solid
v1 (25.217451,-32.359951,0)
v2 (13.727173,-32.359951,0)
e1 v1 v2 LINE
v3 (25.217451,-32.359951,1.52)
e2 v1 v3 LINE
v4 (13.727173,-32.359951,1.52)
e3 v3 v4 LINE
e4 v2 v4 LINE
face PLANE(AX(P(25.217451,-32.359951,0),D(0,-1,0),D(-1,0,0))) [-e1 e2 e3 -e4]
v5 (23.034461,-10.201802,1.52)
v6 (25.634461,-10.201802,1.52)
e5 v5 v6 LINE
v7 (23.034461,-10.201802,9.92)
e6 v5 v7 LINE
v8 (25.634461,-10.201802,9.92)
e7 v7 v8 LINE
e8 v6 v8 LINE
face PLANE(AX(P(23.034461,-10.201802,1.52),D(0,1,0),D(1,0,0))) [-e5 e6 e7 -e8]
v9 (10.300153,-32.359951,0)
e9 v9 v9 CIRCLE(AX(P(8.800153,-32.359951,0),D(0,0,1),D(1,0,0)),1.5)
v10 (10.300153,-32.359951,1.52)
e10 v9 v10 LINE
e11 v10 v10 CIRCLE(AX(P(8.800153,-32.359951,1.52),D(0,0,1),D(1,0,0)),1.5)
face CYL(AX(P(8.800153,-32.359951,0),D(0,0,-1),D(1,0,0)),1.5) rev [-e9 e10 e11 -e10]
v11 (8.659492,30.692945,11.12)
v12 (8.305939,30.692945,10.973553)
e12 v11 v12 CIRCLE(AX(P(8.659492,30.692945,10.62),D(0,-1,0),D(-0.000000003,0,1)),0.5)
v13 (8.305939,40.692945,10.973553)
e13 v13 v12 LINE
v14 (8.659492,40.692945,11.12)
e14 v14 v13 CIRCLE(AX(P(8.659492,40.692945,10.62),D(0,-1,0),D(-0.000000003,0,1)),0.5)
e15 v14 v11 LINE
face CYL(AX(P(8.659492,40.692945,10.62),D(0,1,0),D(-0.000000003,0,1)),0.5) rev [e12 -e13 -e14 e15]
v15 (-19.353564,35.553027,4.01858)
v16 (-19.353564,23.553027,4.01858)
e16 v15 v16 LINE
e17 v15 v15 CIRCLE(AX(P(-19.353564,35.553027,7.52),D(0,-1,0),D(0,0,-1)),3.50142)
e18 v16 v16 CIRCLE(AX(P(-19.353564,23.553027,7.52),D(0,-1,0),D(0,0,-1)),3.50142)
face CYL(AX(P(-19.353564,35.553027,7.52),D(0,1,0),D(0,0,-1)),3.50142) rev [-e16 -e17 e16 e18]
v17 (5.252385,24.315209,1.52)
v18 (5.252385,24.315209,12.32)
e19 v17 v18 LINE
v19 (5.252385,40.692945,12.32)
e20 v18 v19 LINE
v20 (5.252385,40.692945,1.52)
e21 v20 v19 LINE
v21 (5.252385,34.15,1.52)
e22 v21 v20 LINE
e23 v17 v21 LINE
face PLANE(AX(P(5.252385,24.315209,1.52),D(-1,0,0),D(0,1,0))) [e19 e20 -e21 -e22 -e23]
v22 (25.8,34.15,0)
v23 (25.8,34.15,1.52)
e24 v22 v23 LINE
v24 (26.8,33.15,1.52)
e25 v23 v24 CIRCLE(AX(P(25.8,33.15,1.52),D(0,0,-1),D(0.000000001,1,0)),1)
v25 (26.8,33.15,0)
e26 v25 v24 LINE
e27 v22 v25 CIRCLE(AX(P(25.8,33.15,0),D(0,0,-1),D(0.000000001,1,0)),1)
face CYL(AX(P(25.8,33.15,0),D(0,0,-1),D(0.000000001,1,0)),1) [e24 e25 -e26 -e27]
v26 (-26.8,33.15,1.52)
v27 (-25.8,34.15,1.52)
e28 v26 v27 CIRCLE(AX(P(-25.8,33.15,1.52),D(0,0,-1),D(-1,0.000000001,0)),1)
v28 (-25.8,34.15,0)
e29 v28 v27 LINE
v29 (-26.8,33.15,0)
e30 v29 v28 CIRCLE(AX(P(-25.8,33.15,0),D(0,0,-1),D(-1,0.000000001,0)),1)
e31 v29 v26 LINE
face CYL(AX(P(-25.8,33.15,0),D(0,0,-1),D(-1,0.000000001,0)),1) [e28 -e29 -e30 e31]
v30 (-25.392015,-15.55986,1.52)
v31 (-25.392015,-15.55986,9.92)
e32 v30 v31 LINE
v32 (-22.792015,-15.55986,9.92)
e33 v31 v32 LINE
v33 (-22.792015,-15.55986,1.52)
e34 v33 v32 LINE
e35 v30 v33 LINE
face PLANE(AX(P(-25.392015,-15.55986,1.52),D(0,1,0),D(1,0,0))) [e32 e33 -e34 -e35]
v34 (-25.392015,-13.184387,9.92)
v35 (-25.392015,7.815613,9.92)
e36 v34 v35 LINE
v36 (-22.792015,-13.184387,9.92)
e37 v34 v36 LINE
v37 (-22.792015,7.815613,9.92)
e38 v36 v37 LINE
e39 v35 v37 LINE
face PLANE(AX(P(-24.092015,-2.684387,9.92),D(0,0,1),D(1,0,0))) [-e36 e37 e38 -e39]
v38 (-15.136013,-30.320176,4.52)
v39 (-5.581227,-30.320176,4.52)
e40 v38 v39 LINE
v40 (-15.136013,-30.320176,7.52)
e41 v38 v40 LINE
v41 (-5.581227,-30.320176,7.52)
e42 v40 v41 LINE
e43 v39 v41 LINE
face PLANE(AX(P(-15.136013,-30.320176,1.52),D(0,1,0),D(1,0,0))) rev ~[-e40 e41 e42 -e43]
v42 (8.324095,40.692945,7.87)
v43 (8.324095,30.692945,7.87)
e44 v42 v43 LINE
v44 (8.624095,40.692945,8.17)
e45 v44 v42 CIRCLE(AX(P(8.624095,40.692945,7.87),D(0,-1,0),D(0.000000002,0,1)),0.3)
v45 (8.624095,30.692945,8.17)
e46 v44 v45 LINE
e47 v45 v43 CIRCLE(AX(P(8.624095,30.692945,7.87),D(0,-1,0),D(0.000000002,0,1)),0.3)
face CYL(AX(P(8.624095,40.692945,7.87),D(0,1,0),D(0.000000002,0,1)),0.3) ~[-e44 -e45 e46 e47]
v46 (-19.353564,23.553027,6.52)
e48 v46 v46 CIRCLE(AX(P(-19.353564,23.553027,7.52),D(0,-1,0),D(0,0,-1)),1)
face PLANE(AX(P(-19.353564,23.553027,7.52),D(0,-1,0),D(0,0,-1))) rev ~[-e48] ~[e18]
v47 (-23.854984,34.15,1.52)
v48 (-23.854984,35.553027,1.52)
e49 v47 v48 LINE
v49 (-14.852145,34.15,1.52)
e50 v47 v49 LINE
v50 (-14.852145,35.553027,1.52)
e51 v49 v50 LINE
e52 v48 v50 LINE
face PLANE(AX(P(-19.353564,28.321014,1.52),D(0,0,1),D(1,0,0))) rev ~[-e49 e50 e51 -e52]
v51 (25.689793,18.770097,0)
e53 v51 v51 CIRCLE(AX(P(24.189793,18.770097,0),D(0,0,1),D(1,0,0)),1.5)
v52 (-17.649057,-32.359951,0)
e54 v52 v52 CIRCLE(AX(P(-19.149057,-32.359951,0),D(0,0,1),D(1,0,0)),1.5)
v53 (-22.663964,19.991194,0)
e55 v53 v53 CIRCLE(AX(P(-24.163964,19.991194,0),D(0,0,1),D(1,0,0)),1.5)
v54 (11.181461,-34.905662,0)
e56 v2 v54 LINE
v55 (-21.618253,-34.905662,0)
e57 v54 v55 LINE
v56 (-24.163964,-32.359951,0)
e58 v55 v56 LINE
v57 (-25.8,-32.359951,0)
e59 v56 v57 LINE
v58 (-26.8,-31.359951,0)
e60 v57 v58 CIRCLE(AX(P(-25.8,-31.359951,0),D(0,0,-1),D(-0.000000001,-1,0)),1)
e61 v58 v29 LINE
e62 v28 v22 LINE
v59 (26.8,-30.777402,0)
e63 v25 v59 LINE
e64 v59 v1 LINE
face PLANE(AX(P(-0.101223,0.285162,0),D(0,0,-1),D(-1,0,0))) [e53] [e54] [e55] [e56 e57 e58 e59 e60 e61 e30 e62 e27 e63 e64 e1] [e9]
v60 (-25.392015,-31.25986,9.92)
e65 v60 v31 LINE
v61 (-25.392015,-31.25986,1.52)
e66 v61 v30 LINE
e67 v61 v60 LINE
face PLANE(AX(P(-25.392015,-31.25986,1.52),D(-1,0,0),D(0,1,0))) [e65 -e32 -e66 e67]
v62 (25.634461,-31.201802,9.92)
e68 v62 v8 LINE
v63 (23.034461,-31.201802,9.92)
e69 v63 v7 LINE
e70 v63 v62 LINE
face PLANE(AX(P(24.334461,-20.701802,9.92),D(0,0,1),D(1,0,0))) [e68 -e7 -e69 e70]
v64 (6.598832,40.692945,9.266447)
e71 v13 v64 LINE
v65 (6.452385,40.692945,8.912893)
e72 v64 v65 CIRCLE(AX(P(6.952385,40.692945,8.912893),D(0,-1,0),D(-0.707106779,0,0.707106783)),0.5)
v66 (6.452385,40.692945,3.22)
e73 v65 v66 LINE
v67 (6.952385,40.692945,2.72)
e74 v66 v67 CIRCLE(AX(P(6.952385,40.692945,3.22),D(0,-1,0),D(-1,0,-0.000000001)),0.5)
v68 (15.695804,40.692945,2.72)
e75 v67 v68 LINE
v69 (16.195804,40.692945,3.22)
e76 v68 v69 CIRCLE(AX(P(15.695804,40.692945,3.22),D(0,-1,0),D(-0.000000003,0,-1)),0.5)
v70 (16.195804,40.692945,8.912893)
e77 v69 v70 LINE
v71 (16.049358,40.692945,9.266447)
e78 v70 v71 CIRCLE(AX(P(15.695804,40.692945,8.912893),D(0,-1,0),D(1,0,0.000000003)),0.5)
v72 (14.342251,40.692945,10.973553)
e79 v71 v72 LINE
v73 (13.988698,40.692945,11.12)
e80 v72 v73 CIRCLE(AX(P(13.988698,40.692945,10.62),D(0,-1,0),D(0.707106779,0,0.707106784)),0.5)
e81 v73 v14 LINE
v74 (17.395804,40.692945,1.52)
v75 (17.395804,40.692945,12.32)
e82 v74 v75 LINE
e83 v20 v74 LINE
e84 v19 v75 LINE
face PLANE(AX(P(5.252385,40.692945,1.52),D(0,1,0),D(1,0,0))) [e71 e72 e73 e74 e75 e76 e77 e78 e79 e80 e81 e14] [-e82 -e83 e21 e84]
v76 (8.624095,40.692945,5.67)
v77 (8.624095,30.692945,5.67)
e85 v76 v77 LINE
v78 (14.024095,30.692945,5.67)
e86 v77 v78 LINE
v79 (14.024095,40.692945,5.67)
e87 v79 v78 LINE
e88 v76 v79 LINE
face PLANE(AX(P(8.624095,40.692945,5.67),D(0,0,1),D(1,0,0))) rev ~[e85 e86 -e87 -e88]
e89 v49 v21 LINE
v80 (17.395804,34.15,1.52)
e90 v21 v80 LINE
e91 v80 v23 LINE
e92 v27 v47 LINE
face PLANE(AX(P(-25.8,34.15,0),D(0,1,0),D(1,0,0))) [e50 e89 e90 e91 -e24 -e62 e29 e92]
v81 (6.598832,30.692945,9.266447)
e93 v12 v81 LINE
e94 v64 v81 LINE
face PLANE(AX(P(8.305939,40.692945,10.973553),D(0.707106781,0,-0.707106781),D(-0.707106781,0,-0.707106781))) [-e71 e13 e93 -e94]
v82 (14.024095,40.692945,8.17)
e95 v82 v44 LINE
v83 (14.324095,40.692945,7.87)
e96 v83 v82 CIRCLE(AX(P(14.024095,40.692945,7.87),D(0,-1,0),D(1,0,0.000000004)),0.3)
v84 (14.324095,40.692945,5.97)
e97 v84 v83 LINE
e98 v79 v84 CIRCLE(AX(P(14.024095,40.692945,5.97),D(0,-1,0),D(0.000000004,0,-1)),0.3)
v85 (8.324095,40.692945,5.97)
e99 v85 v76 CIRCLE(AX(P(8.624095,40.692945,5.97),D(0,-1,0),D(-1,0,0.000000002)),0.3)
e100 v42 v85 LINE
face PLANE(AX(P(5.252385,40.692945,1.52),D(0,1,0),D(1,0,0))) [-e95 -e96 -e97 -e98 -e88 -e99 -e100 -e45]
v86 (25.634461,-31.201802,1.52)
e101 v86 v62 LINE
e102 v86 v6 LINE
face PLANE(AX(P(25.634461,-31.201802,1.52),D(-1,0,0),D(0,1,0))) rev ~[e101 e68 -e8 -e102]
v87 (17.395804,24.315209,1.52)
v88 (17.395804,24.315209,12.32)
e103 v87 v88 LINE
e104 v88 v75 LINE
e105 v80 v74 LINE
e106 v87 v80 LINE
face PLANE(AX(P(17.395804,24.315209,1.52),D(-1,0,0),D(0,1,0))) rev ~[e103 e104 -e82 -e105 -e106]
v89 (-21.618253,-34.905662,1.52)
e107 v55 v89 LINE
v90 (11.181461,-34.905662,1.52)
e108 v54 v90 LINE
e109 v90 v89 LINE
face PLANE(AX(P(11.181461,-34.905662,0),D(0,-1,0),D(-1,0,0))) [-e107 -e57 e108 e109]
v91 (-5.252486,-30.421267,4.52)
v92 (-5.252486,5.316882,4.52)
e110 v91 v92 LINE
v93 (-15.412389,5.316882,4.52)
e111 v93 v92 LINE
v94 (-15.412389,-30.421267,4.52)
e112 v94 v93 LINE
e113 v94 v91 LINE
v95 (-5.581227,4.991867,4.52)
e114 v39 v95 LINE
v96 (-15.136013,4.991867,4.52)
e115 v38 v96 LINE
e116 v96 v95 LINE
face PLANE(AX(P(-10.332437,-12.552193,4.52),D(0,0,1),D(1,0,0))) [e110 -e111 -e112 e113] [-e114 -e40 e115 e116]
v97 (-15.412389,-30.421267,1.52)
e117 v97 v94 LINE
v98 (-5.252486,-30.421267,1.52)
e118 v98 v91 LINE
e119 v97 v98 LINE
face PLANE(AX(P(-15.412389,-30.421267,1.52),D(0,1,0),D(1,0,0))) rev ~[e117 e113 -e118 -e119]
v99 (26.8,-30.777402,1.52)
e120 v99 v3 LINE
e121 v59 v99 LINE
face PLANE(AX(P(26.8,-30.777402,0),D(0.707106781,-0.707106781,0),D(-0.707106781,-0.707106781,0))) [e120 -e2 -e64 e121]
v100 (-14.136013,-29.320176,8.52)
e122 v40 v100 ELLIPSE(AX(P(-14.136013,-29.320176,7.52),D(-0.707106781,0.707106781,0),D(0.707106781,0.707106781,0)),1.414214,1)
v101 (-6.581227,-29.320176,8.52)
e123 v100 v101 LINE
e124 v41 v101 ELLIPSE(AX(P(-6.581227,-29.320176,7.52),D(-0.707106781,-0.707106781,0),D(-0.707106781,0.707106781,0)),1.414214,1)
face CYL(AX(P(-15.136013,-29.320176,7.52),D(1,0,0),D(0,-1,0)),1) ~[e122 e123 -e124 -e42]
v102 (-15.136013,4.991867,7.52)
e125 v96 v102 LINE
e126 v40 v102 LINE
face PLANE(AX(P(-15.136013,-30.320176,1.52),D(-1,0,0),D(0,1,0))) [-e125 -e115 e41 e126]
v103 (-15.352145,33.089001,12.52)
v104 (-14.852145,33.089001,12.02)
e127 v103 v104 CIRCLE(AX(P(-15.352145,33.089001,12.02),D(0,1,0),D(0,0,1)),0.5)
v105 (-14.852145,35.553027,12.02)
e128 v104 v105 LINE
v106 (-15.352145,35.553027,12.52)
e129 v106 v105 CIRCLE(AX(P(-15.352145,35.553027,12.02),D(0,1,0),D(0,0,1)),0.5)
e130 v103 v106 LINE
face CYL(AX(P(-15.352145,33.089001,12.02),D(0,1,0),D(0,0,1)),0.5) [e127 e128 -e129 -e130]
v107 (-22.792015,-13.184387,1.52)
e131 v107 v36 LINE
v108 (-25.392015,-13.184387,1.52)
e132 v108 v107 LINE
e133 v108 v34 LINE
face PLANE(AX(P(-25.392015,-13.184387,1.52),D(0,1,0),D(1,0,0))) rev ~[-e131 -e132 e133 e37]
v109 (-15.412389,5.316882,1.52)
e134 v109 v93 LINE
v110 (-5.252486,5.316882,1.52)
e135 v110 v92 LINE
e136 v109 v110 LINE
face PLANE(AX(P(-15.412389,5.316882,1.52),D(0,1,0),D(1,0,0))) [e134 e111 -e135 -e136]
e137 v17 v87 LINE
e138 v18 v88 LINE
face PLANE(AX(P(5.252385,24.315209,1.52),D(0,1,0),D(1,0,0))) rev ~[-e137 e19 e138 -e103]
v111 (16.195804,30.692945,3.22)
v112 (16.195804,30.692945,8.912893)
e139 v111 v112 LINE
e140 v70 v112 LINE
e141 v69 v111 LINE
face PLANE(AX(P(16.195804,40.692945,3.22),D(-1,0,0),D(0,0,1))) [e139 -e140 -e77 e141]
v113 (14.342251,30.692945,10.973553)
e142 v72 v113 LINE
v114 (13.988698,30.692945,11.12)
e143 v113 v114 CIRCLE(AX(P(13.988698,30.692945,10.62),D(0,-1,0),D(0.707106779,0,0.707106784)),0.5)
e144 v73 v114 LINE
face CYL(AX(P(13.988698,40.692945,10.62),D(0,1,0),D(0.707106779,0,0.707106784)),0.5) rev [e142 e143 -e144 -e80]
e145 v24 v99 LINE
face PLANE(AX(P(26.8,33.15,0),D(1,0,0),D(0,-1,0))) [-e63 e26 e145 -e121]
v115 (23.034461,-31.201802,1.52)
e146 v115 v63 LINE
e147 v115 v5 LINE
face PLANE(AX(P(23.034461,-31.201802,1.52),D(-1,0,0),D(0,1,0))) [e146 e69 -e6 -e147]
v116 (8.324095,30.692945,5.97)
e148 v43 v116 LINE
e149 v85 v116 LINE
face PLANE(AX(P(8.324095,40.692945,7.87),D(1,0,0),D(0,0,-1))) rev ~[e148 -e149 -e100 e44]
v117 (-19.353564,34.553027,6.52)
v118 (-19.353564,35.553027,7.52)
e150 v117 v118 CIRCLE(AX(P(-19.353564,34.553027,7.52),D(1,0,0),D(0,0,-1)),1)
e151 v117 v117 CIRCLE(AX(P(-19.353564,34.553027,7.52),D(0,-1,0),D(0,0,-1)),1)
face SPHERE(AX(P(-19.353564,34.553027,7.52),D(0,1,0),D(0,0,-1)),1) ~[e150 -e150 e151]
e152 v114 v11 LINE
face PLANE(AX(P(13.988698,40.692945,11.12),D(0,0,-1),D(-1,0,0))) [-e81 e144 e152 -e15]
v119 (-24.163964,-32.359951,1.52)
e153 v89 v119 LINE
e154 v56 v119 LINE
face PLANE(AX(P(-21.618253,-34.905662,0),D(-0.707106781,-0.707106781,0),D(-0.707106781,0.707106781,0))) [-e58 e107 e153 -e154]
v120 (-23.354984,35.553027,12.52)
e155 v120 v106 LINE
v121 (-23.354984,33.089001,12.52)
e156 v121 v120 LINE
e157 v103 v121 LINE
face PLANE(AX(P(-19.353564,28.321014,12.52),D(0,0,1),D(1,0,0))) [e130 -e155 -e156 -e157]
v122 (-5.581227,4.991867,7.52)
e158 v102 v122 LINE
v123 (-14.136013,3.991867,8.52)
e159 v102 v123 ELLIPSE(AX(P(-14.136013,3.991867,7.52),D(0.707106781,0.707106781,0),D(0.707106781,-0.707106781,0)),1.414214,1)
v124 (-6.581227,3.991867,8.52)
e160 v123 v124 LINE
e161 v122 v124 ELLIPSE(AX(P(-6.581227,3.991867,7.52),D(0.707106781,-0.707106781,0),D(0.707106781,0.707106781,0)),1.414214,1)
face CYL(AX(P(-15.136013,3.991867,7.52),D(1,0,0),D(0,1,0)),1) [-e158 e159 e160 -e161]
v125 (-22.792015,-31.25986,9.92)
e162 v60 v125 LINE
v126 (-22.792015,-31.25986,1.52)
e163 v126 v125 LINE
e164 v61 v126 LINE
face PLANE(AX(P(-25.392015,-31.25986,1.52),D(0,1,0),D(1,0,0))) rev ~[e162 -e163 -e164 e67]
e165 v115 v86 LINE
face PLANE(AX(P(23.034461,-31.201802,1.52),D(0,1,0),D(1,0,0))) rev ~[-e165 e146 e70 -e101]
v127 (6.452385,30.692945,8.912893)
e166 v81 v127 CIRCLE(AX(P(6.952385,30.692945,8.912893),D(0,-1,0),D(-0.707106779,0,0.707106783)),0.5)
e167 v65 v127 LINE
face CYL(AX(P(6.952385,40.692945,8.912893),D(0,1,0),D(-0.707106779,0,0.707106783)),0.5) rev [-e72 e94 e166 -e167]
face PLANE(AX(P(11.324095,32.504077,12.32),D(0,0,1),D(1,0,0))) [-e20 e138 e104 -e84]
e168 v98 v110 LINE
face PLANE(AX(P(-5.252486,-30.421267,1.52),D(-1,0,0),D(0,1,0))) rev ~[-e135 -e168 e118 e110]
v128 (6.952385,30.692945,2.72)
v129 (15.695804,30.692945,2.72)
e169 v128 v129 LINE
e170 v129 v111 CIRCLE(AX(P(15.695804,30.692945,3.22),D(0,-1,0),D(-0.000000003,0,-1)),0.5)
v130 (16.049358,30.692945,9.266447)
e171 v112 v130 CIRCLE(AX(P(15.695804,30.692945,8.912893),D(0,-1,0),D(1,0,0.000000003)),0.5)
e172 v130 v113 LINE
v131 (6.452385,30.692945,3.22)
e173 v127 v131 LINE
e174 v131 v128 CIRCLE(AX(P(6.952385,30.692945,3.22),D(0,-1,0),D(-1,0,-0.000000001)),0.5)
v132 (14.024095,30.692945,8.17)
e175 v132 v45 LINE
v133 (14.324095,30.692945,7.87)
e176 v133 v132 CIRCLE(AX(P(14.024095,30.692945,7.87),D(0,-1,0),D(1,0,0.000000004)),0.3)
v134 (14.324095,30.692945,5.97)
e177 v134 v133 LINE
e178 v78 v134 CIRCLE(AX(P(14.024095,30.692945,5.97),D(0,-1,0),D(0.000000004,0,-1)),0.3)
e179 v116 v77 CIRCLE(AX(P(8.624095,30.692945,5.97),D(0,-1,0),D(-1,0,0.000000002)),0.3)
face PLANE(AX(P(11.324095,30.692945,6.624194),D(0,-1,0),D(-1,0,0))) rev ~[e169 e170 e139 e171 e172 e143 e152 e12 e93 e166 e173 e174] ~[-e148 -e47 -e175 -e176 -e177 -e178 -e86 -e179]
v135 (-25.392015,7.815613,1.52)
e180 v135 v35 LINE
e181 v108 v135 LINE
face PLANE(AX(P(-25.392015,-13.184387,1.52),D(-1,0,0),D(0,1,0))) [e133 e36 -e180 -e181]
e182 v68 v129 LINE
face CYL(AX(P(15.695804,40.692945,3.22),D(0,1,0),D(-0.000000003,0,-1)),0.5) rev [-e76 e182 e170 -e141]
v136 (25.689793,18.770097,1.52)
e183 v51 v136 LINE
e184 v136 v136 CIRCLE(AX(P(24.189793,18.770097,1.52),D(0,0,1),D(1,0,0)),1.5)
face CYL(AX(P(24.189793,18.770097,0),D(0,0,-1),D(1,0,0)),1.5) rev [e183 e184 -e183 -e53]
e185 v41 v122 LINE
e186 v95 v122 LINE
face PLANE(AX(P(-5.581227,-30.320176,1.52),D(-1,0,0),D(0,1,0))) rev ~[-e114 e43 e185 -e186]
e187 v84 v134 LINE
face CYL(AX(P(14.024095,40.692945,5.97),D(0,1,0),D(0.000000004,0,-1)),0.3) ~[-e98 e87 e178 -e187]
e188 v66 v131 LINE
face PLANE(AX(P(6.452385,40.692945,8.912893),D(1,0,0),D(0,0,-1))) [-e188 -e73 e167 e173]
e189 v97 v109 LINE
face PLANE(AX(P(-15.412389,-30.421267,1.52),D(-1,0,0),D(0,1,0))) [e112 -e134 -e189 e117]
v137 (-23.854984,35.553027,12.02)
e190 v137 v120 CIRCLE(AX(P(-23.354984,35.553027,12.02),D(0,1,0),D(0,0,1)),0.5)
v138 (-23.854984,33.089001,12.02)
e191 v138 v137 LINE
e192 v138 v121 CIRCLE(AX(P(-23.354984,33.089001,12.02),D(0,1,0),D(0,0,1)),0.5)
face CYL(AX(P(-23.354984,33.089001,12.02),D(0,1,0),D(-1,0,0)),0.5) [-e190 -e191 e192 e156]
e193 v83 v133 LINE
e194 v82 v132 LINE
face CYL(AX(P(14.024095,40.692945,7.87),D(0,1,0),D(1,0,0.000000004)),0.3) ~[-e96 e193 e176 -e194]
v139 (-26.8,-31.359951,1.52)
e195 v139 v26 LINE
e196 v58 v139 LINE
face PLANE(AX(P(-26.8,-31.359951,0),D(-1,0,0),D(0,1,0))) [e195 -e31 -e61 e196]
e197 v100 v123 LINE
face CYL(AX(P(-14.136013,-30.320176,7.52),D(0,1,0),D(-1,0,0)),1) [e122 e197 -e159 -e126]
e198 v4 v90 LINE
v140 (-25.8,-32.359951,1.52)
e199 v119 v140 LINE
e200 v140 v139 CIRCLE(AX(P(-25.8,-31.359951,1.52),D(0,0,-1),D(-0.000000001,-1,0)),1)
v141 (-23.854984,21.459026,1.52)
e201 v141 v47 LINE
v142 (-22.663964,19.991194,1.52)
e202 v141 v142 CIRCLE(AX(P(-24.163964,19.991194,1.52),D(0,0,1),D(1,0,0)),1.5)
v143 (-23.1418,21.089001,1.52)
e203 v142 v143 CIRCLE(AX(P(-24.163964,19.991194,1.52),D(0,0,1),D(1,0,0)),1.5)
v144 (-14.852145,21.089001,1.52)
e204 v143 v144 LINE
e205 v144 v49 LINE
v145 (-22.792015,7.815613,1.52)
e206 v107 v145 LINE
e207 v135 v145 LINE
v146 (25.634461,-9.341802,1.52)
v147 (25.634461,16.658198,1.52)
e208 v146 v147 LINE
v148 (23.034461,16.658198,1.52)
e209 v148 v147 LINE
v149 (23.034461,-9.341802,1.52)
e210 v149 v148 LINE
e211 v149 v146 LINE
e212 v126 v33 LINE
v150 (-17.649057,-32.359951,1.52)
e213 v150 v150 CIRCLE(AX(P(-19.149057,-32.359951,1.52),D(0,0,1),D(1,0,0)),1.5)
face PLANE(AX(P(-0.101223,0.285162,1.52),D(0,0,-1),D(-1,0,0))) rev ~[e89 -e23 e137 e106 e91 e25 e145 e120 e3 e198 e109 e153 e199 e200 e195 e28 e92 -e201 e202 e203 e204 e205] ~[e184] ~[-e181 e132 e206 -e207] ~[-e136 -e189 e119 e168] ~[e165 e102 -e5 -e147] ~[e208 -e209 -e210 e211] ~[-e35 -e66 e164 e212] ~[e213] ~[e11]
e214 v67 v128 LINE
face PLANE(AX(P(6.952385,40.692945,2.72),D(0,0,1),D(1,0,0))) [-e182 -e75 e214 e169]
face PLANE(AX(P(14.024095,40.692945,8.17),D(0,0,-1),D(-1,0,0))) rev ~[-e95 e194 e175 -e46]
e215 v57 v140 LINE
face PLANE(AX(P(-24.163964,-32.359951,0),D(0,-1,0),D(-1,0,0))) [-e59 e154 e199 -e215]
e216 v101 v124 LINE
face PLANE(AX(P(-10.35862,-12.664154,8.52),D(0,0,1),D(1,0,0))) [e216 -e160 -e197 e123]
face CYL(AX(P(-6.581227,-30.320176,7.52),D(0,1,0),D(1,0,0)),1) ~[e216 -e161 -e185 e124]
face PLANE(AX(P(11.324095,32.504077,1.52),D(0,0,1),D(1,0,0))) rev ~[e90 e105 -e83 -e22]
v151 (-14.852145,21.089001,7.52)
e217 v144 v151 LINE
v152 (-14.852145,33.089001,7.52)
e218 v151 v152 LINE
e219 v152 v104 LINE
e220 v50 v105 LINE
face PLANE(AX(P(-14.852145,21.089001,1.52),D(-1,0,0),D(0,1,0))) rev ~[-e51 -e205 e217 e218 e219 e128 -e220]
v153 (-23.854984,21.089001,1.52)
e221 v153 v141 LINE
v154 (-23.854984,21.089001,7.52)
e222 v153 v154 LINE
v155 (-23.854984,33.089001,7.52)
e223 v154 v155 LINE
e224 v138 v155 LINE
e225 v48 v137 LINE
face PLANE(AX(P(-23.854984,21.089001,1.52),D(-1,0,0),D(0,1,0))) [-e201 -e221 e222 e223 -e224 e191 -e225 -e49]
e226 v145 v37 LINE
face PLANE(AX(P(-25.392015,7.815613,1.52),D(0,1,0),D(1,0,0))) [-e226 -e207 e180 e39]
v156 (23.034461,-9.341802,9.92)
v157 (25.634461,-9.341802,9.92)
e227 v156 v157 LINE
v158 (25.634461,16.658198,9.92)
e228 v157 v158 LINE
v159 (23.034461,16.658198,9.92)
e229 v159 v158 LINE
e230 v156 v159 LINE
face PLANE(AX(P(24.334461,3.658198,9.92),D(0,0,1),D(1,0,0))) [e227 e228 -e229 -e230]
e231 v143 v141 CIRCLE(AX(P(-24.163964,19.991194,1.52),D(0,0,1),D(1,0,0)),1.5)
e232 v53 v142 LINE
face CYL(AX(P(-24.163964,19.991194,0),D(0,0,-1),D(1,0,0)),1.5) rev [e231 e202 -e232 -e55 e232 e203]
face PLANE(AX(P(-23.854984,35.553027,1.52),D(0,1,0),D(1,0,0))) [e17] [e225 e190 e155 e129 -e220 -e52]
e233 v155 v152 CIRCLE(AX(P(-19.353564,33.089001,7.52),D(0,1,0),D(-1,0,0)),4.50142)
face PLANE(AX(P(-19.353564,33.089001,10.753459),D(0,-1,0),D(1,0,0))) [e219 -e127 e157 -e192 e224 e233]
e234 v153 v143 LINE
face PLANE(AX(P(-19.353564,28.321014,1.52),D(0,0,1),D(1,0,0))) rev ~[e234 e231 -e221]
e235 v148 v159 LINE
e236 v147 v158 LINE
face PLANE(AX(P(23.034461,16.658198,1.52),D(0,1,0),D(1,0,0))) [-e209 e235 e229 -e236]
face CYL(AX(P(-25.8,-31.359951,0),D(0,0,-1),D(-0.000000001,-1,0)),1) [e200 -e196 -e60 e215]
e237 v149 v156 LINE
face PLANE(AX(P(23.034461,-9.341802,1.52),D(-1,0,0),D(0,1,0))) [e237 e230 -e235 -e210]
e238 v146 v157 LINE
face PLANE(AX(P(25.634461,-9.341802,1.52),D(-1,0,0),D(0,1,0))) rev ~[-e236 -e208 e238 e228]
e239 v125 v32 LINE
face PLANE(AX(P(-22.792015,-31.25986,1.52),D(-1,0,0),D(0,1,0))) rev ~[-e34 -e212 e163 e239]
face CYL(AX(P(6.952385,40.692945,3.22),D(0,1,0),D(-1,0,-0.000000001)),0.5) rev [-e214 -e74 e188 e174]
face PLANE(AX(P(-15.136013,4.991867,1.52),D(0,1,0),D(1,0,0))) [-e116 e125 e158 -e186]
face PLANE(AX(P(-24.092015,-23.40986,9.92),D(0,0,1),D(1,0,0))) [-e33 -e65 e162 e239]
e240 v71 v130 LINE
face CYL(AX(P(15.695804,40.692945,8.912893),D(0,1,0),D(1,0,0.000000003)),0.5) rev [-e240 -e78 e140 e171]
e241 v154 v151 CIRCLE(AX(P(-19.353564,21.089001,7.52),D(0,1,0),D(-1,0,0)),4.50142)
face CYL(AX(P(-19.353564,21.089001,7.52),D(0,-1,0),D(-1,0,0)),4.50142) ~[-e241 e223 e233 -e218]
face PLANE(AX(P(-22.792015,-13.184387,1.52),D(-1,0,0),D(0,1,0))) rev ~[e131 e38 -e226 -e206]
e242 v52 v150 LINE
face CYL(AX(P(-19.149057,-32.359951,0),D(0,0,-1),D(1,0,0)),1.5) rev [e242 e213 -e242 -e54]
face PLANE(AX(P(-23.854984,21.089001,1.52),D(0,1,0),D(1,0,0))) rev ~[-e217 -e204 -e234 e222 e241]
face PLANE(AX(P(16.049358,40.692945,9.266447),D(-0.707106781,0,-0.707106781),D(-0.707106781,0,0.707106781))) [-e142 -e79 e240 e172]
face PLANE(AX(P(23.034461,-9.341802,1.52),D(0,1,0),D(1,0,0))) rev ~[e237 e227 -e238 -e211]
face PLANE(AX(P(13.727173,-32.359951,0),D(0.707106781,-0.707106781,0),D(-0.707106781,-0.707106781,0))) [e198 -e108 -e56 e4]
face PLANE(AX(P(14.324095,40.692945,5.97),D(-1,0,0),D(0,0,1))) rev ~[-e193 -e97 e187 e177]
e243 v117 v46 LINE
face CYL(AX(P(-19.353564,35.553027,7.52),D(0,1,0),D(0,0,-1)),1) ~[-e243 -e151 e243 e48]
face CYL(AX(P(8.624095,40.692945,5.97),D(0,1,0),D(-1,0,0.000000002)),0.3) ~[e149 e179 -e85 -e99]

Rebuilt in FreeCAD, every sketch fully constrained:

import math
import FreeCAD as App
import Part
import Sketcher


def edges_at(feature, points):
    """Names of the edges that pass closest to the given points."""
    edges = feature.Shape.Edges
    near = lambda p: min(range(len(edges)), key=lambda i: edges[i].distToShape(Part.Vertex(*p))[0])
    return sorted({f"Edge{near(p) + 1}" for p in points})


def add_polygon(sketch, points):
    """Adds a closed chain of lines whose ends are joined by coincident constraints."""
    first, n = sketch.GeometryCount, len(points)
    for a, b in zip(points, points[1:] + points[:1]):
        sketch.addGeometry(Part.LineSegment(App.Vector(*a, 0), App.Vector(*b, 0)), False)
    for i in range(n):
        sketch.addConstraint(Sketcher.Constraint("Coincident", first + i, 2, first + (i + 1) % n, 1))

doc = App.newDocument("Part")
params = doc.addObject("Spreadsheet::Sheet", "Params")
for row, (alias, value) in enumerate([
    ("sketch1_diameter", "3 mm"),
    ("sketch1_radius", "1 mm"),
    ("sketch1_width", "51.6 mm"),
    ("pad1_length", "1.52 mm"),
    ("pad2_length", "11 mm"),
    ("sketch3_height", "21 mm"),
    ("sketch3_height2", "26 mm"),
    ("sketch3_width", "2.6 mm"),
    ("sketch3_height3", "15.7 mm"),
    ("pad3_length", "8.4 mm"),
    ("sketch4_height", "5 mm"),
    ("pocket1_length", "12 mm"),
    ("sketch5_diameter", "2 mm"),
    ("pocket2_length", "12 mm"),
    ("fillet_radius", "1 mm"),
    ("fillet2_radius", "0.5 mm"),
    ("pad4_length", "10.8 mm"),
    ("sketch7_radius", "0.5 mm"),
    ("sketch7_radius2", "0.3 mm"),
    ("sketch7_width", "5.4 mm"),
    ("sketch7_height", "1.9 mm"),
    ("pocket3_length", "10 mm"),
    ("pad5_length", "7 mm"),
    ("fillet3_radius", "1 mm"),
    ("pad6_length", "3 mm"),
], start=1):
    params.set(f"A{row}", alias)
    params.set(f"B{row}", "=" + value)
    params.setAlias(f"B{row}", alias)

body = doc.addObject("PartDesign::Body", "Body")

# Sketch on XY plane
sketch1 = doc.addObject("Sketcher::SketchObject", "Sketch")
body.addObject(sketch1)
sketch1.AttachmentSupport = (doc.XY_Plane, [""])
sketch1.MapMode = "FlatFace"
sketch1.addGeometry([
    Part.LineSegment(App.Vector(25.217451, -32.359951, 0), App.Vector(26.8, -30.777402, 0)),  # 0
    Part.LineSegment(App.Vector(26.8, -30.777402, 0), App.Vector(26.8, 33.15, 0)),  # 1
    Part.ArcOfCircle(Part.Circle(App.Vector(25.8, 33.15, 0), App.Vector(0, 0, 1), 1), math.radians(0), math.radians(90)),  # 2
    Part.LineSegment(App.Vector(25.8, 34.15, 0), App.Vector(-25.8, 34.15, 0)),  # 3
    Part.ArcOfCircle(Part.Circle(App.Vector(-25.8, 33.15, 0), App.Vector(0, 0, 1), 1), math.radians(90), math.radians(180)),  # 4
    Part.LineSegment(App.Vector(-26.8, 33.15, 0), App.Vector(-26.8, -31.359951, 0)),  # 5
    Part.ArcOfCircle(Part.Circle(App.Vector(-25.8, -31.359951, 0), App.Vector(0, 0, 1), 1), math.radians(-180), math.radians(-90)),  # 6
    Part.LineSegment(App.Vector(-25.8, -32.359951, 0), App.Vector(-24.163964, -32.359951, 0)),  # 7
    Part.LineSegment(App.Vector(-24.163964, -32.359951, 0), App.Vector(-21.618253, -34.905662, 0)),  # 8
    Part.LineSegment(App.Vector(-21.618253, -34.905662, 0), App.Vector(11.181461, -34.905662, 0)),  # 9
    Part.LineSegment(App.Vector(11.181461, -34.905662, 0), App.Vector(13.727173, -32.359951, 0)),  # 10
    Part.LineSegment(App.Vector(13.727173, -32.359951, 0), App.Vector(25.217451, -32.359951, 0)),  # 11
    Part.Circle(App.Vector(8.800153, -32.359951, 0), App.Vector(0, 0, 1), 1.5),  # 12
    Part.Circle(App.Vector(-19.149057, -32.359951, 0), App.Vector(0, 0, 1), 1.5),  # 13
    Part.Circle(App.Vector(24.189793, 18.770097, 0), App.Vector(0, 0, 1), 1.5),  # 14
    Part.Circle(App.Vector(-24.163964, 19.991194, 0), App.Vector(0, 0, 1), 1.5),  # 15
], False)
sketch1.addConstraint([
    Sketcher.Constraint("Coincident", 0, 2, 1, 1),
    Sketcher.Constraint("Tangent", 1, 2, 2, 1),
    Sketcher.Constraint("Tangent", 2, 2, 3, 1),
    Sketcher.Constraint("Tangent", 3, 2, 4, 1),
    Sketcher.Constraint("Tangent", 4, 2, 5, 1),
    Sketcher.Constraint("Tangent", 5, 2, 6, 1),
    Sketcher.Constraint("Tangent", 6, 2, 7, 1),
    Sketcher.Constraint("Coincident", 7, 2, 8, 1),
    Sketcher.Constraint("Coincident", 8, 2, 9, 1),
    Sketcher.Constraint("Coincident", 9, 2, 10, 1),
    Sketcher.Constraint("Coincident", 10, 2, 11, 1),
    Sketcher.Constraint("Coincident", 11, 2, 0, 1),
    Sketcher.Constraint("Vertical", 1),
    Sketcher.Constraint("Horizontal", 3),
    Sketcher.Constraint("Vertical", 5),
    Sketcher.Constraint("Horizontal", 7),
    Sketcher.Constraint("Horizontal", 9),
    Sketcher.Constraint("Horizontal", 11),
    Sketcher.Constraint("Equal", 2, 4),
    Sketcher.Constraint("Equal", 4, 6),
    Sketcher.Constraint("Equal", 12, 13),
    Sketcher.Constraint("Equal", 13, 14),
    Sketcher.Constraint("Equal", 14, 15),
    Sketcher.Constraint("Perpendicular", 0, 8),
    Sketcher.Constraint("Perpendicular", 8, 10),
    Sketcher.Constraint("Horizontal", 12, 3, 13, 3),
    Sketcher.Constraint("Horizontal", 13, 3, 6, 2),
    Sketcher.Constraint("Horizontal", 7, 2, 10, 2),
    Sketcher.Constraint("Vertical", 15, 3, 7, 2),
    Sketcher.Constraint("Equal", 8, 10),
    Sketcher.Constraint("Diameter", 12, 3.0),
    Sketcher.Constraint("Radius", 2, 1.0),
    Sketcher.Constraint("DistanceX", 3, 2, 3, 1, 51.6),
    Sketcher.Constraint("DistanceX", -1, 1, 2, 3, 25.8),
    Sketcher.Constraint("DistanceY", -1, 1, 2, 3, 33.15),
    Sketcher.Constraint("DistanceX", 11, 1, 11, 2, 11.490279),
    Sketcher.Constraint("DistanceY", 5, 2, 5, 1, 64.509951),
    Sketcher.Constraint("DistanceY", 0, 2, 14, 3, 49.547499),
    Sketcher.Constraint("DistanceX", 12, 3, 11, 2, 16.417298),
    Sketcher.Constraint("Distance", 0, 2.238062),
    Sketcher.Constraint("Distance", 8, 3.60018),
    Sketcher.Constraint("DistanceX", 7, 1, 7, 2, 1.636036),
    Sketcher.Constraint("DistanceX", 13, 3, 12, 3, 27.94921),
    Sketcher.Constraint("DistanceX", 12, 3, 14, 3, 15.38964),
    Sketcher.Constraint("DistanceY", -1, 1, 15, 3, 19.991194),
])
sketch1.setExpression("Constraints[30]", "Params.sketch1_diameter")
sketch1.setExpression("Constraints[31]", "Params.sketch1_radius")
sketch1.setExpression("Constraints[32]", "Params.sketch1_width")
pad1 = doc.addObject("PartDesign::Pad", "Pad")
body.addObject(pad1)
pad1.Profile = sketch1
pad1.setExpression("Length", "Params.pad1_length")

# Sketch on XY plane
sketch2 = doc.addObject("Sketcher::SketchObject", "Sketch001")
body.addObject(sketch2)
sketch2.AttachmentSupport = (doc.XY_Plane, [""])
sketch2.MapMode = "FlatFace"
sketch2.AttachmentOffset = App.Placement(App.Vector(0, 0, 1.52), App.Rotation())
add_polygon(sketch2, [(-23.854984, 35.553027), (-23.854984, 21.089001), (-14.852145, 21.089001), (-14.852145, 35.553027)])  # lines 0-3
sketch2.addConstraint([
    Sketcher.Constraint("Vertical", 0),
    Sketcher.Constraint("Horizontal", 1),
    Sketcher.Constraint("Vertical", 2),
    Sketcher.Constraint("Horizontal", 3),
    Sketcher.Constraint("DistanceY", -1, 1, 0, 2, 21.089001),
    Sketcher.Constraint("DistanceX", 1, 1, 1, 2, 9.002839),
    Sketcher.Constraint("DistanceY", 0, 2, 0, 1, 14.464026),
    Sketcher.Constraint("DistanceX", 0, 2, -1, 1, 23.854984),
])
pad2 = doc.addObject("PartDesign::Pad", "Pad001")
body.addObject(pad2)
pad2.Profile = sketch2
pad2.setExpression("Length", "Params.pad2_length")

# Sketch on XY plane
sketch3 = doc.addObject("Sketcher::SketchObject", "Sketch002")
body.addObject(sketch3)
sketch3.AttachmentSupport = (doc.XY_Plane, [""])
sketch3.MapMode = "FlatFace"
sketch3.AttachmentOffset = App.Placement(App.Vector(0, 0, 1.52), App.Rotation())
add_polygon(sketch3, [(23.034461, -10.201802), (23.034461, -31.201802), (25.634461, -31.201802), (25.634461, -10.201802)])  # lines 0-3
add_polygon(sketch3, [(23.034461, 16.658198), (23.034461, -9.341802), (25.634461, -9.341802), (25.634461, 16.658198)])  # lines 4-7
add_polygon(sketch3, [(-25.392015, 7.815613), (-25.392015, -13.184387), (-22.792015, -13.184387), (-22.792015, 7.815613)])  # lines 8-11
add_polygon(sketch3, [(-25.392015, -15.55986), (-25.392015, -31.25986), (-22.792015, -31.25986), (-22.792015, -15.55986)])  # lines 12-15
sketch3.addConstraint([
    Sketcher.Constraint("Vertical", 0),
    Sketcher.Constraint("Horizontal", 1),
    Sketcher.Constraint("Vertical", 2),
    Sketcher.Constraint("Horizontal", 3),
    Sketcher.Constraint("Vertical", 4),
    Sketcher.Constraint("Horizontal", 5),
    Sketcher.Constraint("Vertical", 6),
    Sketcher.Constraint("Horizontal", 7),
    Sketcher.Constraint("Vertical", 8),
    Sketcher.Constraint("Horizontal", 9),
    Sketcher.Constraint("Vertical", 10),
    Sketcher.Constraint("Horizontal", 11),
    Sketcher.Constraint("Vertical", 12),
    Sketcher.Constraint("Horizontal", 13),
    Sketcher.Constraint("Vertical", 14),
    Sketcher.Constraint("Horizontal", 15),
    Sketcher.Constraint("Vertical", 3, 2, 4, 2),
    Sketcher.Constraint("Vertical", 2, 2, 5, 2),
    Sketcher.Constraint("Vertical", 11, 2, 12, 2),
    Sketcher.Constraint("Vertical", 10, 2, 13, 2),
    Sketcher.Constraint("Equal", 7, 9),
    Sketcher.Constraint("Equal", 2, 8),
    Sketcher.Constraint("DistanceY", 0, 2, 0, 1, 21.0),
    Sketcher.Constraint("DistanceY", 4, 2, 4, 1, 26.0),
    Sketcher.Constraint("DistanceX", 1, 1, 1, 2, 2.6),
    Sketcher.Constraint("DistanceY", 12, 2, 12, 1, 15.7),
    Sketcher.Constraint("DistanceY", 3, 2, 4, 2, 0.86),
    Sketcher.Constraint("DistanceX", -1, 1, 0, 2, 23.034461),
    Sketcher.Constraint("DistanceY", 12, 2, -1, 1, 31.25986),
    Sketcher.Constraint("DistanceY", 0, 2, -1, 1, 31.201802),
    Sketcher.Constraint("DistanceX", 8, 2, -1, 1, 25.392015),
    Sketcher.Constraint("DistanceY", 8, 2, -1, 1, 13.184387),
])
sketch3.setExpression("Constraints[38]", "Params.sketch3_height")
sketch3.setExpression("Constraints[39]", "Params.sketch3_height2")
sketch3.setExpression("Constraints[40]", "Params.sketch3_width")
sketch3.setExpression("Constraints[41]", "Params.sketch3_height3")
pad3 = doc.addObject("PartDesign::Pad", "Pad002")
body.addObject(pad3)
pad3.Profile = sketch3
pad3.setExpression("Length", "Params.pad3_length")

# Sketch on XZ plane
sketch4 = doc.addObject("Sketcher::SketchObject", "Sketch003")
body.addObject(sketch4)
sketch4.AttachmentSupport = (doc.XZ_Plane, [""])
sketch4.MapMode = "FlatFace"
sketch4.AttachmentOffset = App.Placement(App.Vector(0, 0, -21.089001), App.Rotation())
sketch4.addGeometry([
    Part.LineSegment(App.Vector(-14.852145, 7.52, 0), App.Vector(-14.852145, 12.52, 0)),
    Part.LineSegment(App.Vector(-14.852145, 12.52, 0), App.Vector(-23.854984, 12.52, 0)),
    Part.LineSegment(App.Vector(-23.854984, 12.52, 0), App.Vector(-23.854984, 7.52, 0)),
    Part.ArcOfCircle(Part.Circle(App.Vector(-19.353564, 7.52, 0), App.Vector(0, 0, 1), 4.50142), math.radians(0), math.radians(180)),
], False)
sketch4.addConstraint([
    Sketcher.Constraint("Coincident", 0, 2, 1, 1),
    Sketcher.Constraint("Coincident", 1, 2, 2, 1),
    Sketcher.Constraint("Tangent", 2, 2, 3, 2),
    Sketcher.Constraint("Tangent", 3, 1, 0, 1),
    Sketcher.Constraint("Vertical", 0),
    Sketcher.Constraint("Horizontal", 1),
    Sketcher.Constraint("Vertical", 2),
    Sketcher.Constraint("DistanceY", 0, 1, 0, 2, 5.0),
    Sketcher.Constraint("DistanceY", -1, 1, 3, 3, 7.52),
    Sketcher.Constraint("Radius", 3, 4.50142),
    Sketcher.Constraint("DistanceX", 3, 3, -1, 1, 19.353564),
])
sketch4.setExpression("Constraints[7]", "Params.sketch4_height")
pocket1 = doc.addObject("PartDesign::Pocket", "Pocket")
body.addObject(pocket1)
pocket1.Profile = sketch4
pocket1.setExpression("Length", "Params.pocket1_length")

# Sketch on XZ plane
sketch5 = doc.addObject("Sketcher::SketchObject", "Sketch004")
body.addObject(sketch5)
sketch5.AttachmentSupport = (doc.XZ_Plane, [""])
sketch5.MapMode = "FlatFace"
sketch5.AttachmentOffset = App.Placement(App.Vector(0, 0, -35.553027), App.Rotation())
sketch5.addGeometry([
    Part.Circle(App.Vector(-19.353564, 7.52, 0), App.Vector(0, 0, 1), 3.50142),
    Part.Circle(App.Vector(-19.353564, 7.52, 0), App.Vector(0, 0, 1), 1),
], False)
sketch5.addConstraint([
    Sketcher.Constraint("Coincident", 1, 3, 0, 3),
    Sketcher.Constraint("Diameter", 1, 2.0),
    Sketcher.Constraint("Diameter", 0, 7.002839),
    Sketcher.Constraint("DistanceY", -1, 1, 0, 3, 7.52),
    Sketcher.Constraint("DistanceX", 0, 3, -1, 1, 19.353564),
])
sketch5.setExpression("Constraints[1]", "Params.sketch5_diameter")
pocket2 = doc.addObject("PartDesign::Pocket", "Pocket001")
body.addObject(pocket2)
pocket2.Profile = sketch5
pocket2.setExpression("Length", "Params.pocket2_length")
pocket2.Reversed = True
doc.recompute()

fillet = doc.addObject("PartDesign::Fillet", "Fillet")
body.addObject(fillet)
fillet.Base = (pocket2, edges_at(pocket2, [(-19.354, 35.553, 8.52)]))
fillet.setExpression("Radius", "Params.fillet_radius")
doc.recompute()

fillet2 = doc.addObject("PartDesign::Fillet", "Fillet001")
body.addObject(fillet2)
fillet2.Base = (fillet, edges_at(fillet, [(-14.852, 34.321, 12.52), (-23.855, 34.321, 12.52)]))
fillet2.setExpression("Radius", "Params.fillet2_radius")

# Sketch on XY plane
sketch6 = doc.addObject("Sketcher::SketchObject", "Sketch005")
body.addObject(sketch6)
sketch6.AttachmentSupport = (doc.XY_Plane, [""])
sketch6.MapMode = "FlatFace"
sketch6.AttachmentOffset = App.Placement(App.Vector(0, 0, 1.52), App.Rotation())
add_polygon(sketch6, [(5.252385, 40.692945), (5.252385, 24.315209), (17.395804, 24.315209), (17.395804, 40.692945)])  # lines 0-3
sketch6.addConstraint([
    Sketcher.Constraint("Vertical", 0),
    Sketcher.Constraint("Horizontal", 1),
    Sketcher.Constraint("Vertical", 2),
    Sketcher.Constraint("Horizontal", 3),
    Sketcher.Constraint("DistanceX", 1, 1, 1, 2, 12.143419),
    Sketcher.Constraint("DistanceY", 0, 2, 0, 1, 16.377736),
    Sketcher.Constraint("DistanceY", -1, 1, 0, 2, 24.315209),
    Sketcher.Constraint("DistanceX", -1, 1, 0, 2, 5.252385),
])
pad4 = doc.addObject("PartDesign::Pad", "Pad003")
body.addObject(pad4)
pad4.Profile = sketch6
pad4.setExpression("Length", "Params.pad4_length")

# Sketch on XZ plane
sketch7 = doc.addObject("Sketcher::SketchObject", "Sketch006")
body.addObject(sketch7)
sketch7.AttachmentSupport = (doc.XZ_Plane, [""])
sketch7.MapMode = "FlatFace"
sketch7.AttachmentOffset = App.Placement(App.Vector(0, 0, -40.692945), App.Rotation())
sketch7.addGeometry([
    Part.LineSegment(App.Vector(15.695804, 2.72, 0), App.Vector(6.952385, 2.72, 0)),  # 0
    Part.ArcOfCircle(Part.Circle(App.Vector(6.952385, 3.22, 0), App.Vector(0, 0, 1), 0.5), math.radians(180), math.radians(270)),  # 1
    Part.LineSegment(App.Vector(6.452385, 3.22, 0), App.Vector(6.452385, 8.912893, 0)),  # 2
    Part.ArcOfCircle(Part.Circle(App.Vector(6.952385, 8.912893, 0), App.Vector(0, 0, 1), 0.5), math.radians(135), math.radians(180)),  # 3
    Part.LineSegment(App.Vector(6.598832, 9.266447, 0), App.Vector(8.305939, 10.973553, 0)),  # 4
    Part.ArcOfCircle(Part.Circle(App.Vector(8.659492, 10.62, 0), App.Vector(0, 0, 1), 0.5), math.radians(90), math.radians(135)),  # 5
    Part.LineSegment(App.Vector(8.659492, 11.12, 0), App.Vector(13.988698, 11.12, 0)),  # 6
    Part.ArcOfCircle(Part.Circle(App.Vector(13.988698, 10.62, 0), App.Vector(0, 0, 1), 0.5), math.radians(45), math.radians(90)),  # 7
    Part.LineSegment(App.Vector(14.342251, 10.973553, 0), App.Vector(16.049358, 9.266447, 0)),  # 8
    Part.ArcOfCircle(Part.Circle(App.Vector(15.695804, 8.912893, 0), App.Vector(0, 0, 1), 0.5), math.radians(0), math.radians(45)),  # 9
    Part.LineSegment(App.Vector(16.195804, 8.912893, 0), App.Vector(16.195804, 3.22, 0)),  # 10
    Part.ArcOfCircle(Part.Circle(App.Vector(15.695804, 3.22, 0), App.Vector(0, 0, 1), 0.5), math.radians(-90), math.radians(0)),  # 11
    Part.LineSegment(App.Vector(14.024095, 8.17, 0), App.Vector(8.624095, 8.17, 0)),  # 12
    Part.ArcOfCircle(Part.Circle(App.Vector(8.624095, 7.87, 0), App.Vector(0, 0, 1), 0.3), math.radians(90), math.radians(180)),  # 13
    Part.LineSegment(App.Vector(8.324095, 7.87, 0), App.Vector(8.324095, 5.97, 0)),  # 14
    Part.ArcOfCircle(Part.Circle(App.Vector(8.624095, 5.97, 0), App.Vector(0, 0, 1), 0.3), math.radians(180), math.radians(270)),  # 15
    Part.LineSegment(App.Vector(8.624095, 5.67, 0), App.Vector(14.024095, 5.67, 0)),  # 16
    Part.ArcOfCircle(Part.Circle(App.Vector(14.024095, 5.97, 0), App.Vector(0, 0, 1), 0.3), math.radians(-90), math.radians(0)),  # 17
    Part.LineSegment(App.Vector(14.324095, 5.97, 0), App.Vector(14.324095, 7.87, 0)),  # 18
    Part.ArcOfCircle(Part.Circle(App.Vector(14.024095, 7.87, 0), App.Vector(0, 0, 1), 0.3), math.radians(0), math.radians(90)),  # 19
], False)
sketch7.addConstraint([
    Sketcher.Constraint("Tangent", 0, 2, 1, 2),
    Sketcher.Constraint("Tangent", 1, 1, 2, 1),
    Sketcher.Constraint("Tangent", 2, 2, 3, 2),
    Sketcher.Constraint("Tangent", 3, 1, 4, 1),
    Sketcher.Constraint("Tangent", 4, 2, 5, 2),
    Sketcher.Constraint("Tangent", 5, 1, 6, 1),
    Sketcher.Constraint("Tangent", 6, 2, 7, 2),
    Sketcher.Constraint("Tangent", 7, 1, 8, 1),
    Sketcher.Constraint("Tangent", 8, 2, 9, 2),
    Sketcher.Constraint("Tangent", 9, 1, 10, 1),
    Sketcher.Constraint("Tangent", 10, 2, 11, 2),
    Sketcher.Constraint("Tangent", 11, 1, 0, 1),
    Sketcher.Constraint("Tangent", 12, 2, 13, 1),
    Sketcher.Constraint("Tangent", 13, 2, 14, 1),
    Sketcher.Constraint("Tangent", 14, 2, 15, 1),
    Sketcher.Constraint("Tangent", 15, 2, 16, 1),
    Sketcher.Constraint("Tangent", 16, 2, 17, 1),
    Sketcher.Constraint("Tangent", 17, 2, 18, 1),
    Sketcher.Constraint("Tangent", 18, 2, 19, 1),
    Sketcher.Constraint("Tangent", 19, 2, 12, 1),
    Sketcher.Constraint("Horizontal", 0),
    Sketcher.Constraint("Vertical", 2),
    Sketcher.Constraint("Horizontal", 6),
    Sketcher.Constraint("Vertical", 10),
    Sketcher.Constraint("Horizontal", 12),
    Sketcher.Constraint("Vertical", 14),
    Sketcher.Constraint("Horizontal", 16),
    Sketcher.Constraint("Vertical", 18),
    Sketcher.Constraint("Equal", 1, 3),
    Sketcher.Constraint("Equal", 3, 5),
    Sketcher.Constraint("Equal", 5, 7),
    Sketcher.Constraint("Equal", 7, 9),
    Sketcher.Constraint("Equal", 9, 11),
    Sketcher.Constraint("Equal", 13, 15),
    Sketcher.Constraint("Equal", 15, 17),
    Sketcher.Constraint("Equal", 17, 19),
    Sketcher.Constraint("Perpendicular", 4, 8),
    Sketcher.Constraint("Horizontal", 3, 3, 9, 3),
    Sketcher.Constraint("Horizontal", 4, 2, 7, 1),
    Sketcher.Constraint("Radius", 1, 0.5),
    Sketcher.Constraint("Radius", 13, 0.3),
    Sketcher.Constraint("DistanceX", 12, 2, 12, 1, 5.4),
    Sketcher.Constraint("DistanceY", 14, 2, 14, 1, 1.9),
    Sketcher.Constraint("DistanceY", 1, 3, 5, 3, 7.4),
    Sketcher.Constraint("DistanceY", -1, 1, 1, 3, 3.22),
    Sketcher.Constraint("DistanceY", -1, 1, 13, 3, 7.87),
    Sketcher.Constraint("DistanceX", 0, 2, 0, 1, 8.743419),
    Sketcher.Constraint("DistanceX", 6, 1, 6, 2, 5.329205),
    Sketcher.Constraint("DistanceX", -1, 1, 4, 2, 8.305939),
    Sketcher.Constraint("DistanceX", 3, 3, 13, 3, 1.671709),
])
sketch7.setExpression("Constraints[39]", "Params.sketch7_radius")
sketch7.setExpression("Constraints[40]", "Params.sketch7_radius2")
sketch7.setExpression("Constraints[41]", "Params.sketch7_width")
sketch7.setExpression("Constraints[42]", "Params.sketch7_height")
pocket3 = doc.addObject("PartDesign::Pocket", "Pocket002")
body.addObject(pocket3)
pocket3.Profile = sketch7
pocket3.setExpression("Length", "Params.pocket3_length")
pocket3.Reversed = True

# Sketch on XY plane
sketch8 = doc.addObject("Sketcher::SketchObject", "Sketch007")
body.addObject(sketch8)
sketch8.AttachmentSupport = (doc.XY_Plane, [""])
sketch8.MapMode = "FlatFace"
sketch8.AttachmentOffset = App.Placement(App.Vector(0, 0, 1.52), App.Rotation())
add_polygon(sketch8, [(-15.136013, 4.991867), (-15.136013, -30.320176), (-5.581227, -30.320176), (-5.581227, 4.991867)])  # lines 0-3
sketch8.addConstraint([
    Sketcher.Constraint("Vertical", 0),
    Sketcher.Constraint("Horizontal", 1),
    Sketcher.Constraint("Vertical", 2),
    Sketcher.Constraint("Horizontal", 3),
    Sketcher.Constraint("DistanceX", 1, 1, 1, 2, 9.554785),
    Sketcher.Constraint("DistanceY", 0, 2, 0, 1, 35.312043),
    Sketcher.Constraint("DistanceX", 0, 2, -1, 1, 15.136013),
    Sketcher.Constraint("DistanceY", 0, 2, -1, 1, 30.320176),
])
pad5 = doc.addObject("PartDesign::Pad", "Pad004")
body.addObject(pad5)
pad5.Profile = sketch8
pad5.setExpression("Length", "Params.pad5_length")
doc.recompute()

fillet3 = doc.addObject("PartDesign::Fillet", "Fillet002")
body.addObject(fillet3)
fillet3.Base = (pad5, edges_at(pad5, [
    (-5.581, -12.664, 8.52),
    (-10.359, 4.992, 8.52),
    (-15.136, -12.664, 8.52),
    (-10.359, -30.32, 8.52),
]))
fillet3.setExpression("Radius", "Params.fillet3_radius")

# Sketch on XY plane
sketch9 = doc.addObject("Sketcher::SketchObject", "Sketch008")
body.addObject(sketch9)
sketch9.AttachmentSupport = (doc.XY_Plane, [""])
sketch9.MapMode = "FlatFace"
sketch9.AttachmentOffset = App.Placement(App.Vector(0, 0, 1.52), App.Rotation())
add_polygon(sketch9, [(-15.412389, 5.316882), (-15.412389, -30.421267), (-5.252486, -30.421267), (-5.252486, 5.316882)])  # lines 0-3
sketch9.addConstraint([
    Sketcher.Constraint("Vertical", 0),
    Sketcher.Constraint("Horizontal", 1),
    Sketcher.Constraint("Vertical", 2),
    Sketcher.Constraint("Horizontal", 3),
    Sketcher.Constraint("DistanceY", 0, 2, 0, 1, 35.738149),
    Sketcher.Constraint("DistanceX", 1, 1, 1, 2, 10.159902),
    Sketcher.Constraint("DistanceX", 0, 2, -1, 1, 15.412389),
    Sketcher.Constraint("DistanceY", -1, 1, 2, 2, 5.316882),
])
pad6 = doc.addObject("PartDesign::Pad", "Pad005")
body.addObject(pad6)
pad6.Profile = sketch9
pad6.setExpression("Length", "Params.pad6_length")

doc.recompute()
